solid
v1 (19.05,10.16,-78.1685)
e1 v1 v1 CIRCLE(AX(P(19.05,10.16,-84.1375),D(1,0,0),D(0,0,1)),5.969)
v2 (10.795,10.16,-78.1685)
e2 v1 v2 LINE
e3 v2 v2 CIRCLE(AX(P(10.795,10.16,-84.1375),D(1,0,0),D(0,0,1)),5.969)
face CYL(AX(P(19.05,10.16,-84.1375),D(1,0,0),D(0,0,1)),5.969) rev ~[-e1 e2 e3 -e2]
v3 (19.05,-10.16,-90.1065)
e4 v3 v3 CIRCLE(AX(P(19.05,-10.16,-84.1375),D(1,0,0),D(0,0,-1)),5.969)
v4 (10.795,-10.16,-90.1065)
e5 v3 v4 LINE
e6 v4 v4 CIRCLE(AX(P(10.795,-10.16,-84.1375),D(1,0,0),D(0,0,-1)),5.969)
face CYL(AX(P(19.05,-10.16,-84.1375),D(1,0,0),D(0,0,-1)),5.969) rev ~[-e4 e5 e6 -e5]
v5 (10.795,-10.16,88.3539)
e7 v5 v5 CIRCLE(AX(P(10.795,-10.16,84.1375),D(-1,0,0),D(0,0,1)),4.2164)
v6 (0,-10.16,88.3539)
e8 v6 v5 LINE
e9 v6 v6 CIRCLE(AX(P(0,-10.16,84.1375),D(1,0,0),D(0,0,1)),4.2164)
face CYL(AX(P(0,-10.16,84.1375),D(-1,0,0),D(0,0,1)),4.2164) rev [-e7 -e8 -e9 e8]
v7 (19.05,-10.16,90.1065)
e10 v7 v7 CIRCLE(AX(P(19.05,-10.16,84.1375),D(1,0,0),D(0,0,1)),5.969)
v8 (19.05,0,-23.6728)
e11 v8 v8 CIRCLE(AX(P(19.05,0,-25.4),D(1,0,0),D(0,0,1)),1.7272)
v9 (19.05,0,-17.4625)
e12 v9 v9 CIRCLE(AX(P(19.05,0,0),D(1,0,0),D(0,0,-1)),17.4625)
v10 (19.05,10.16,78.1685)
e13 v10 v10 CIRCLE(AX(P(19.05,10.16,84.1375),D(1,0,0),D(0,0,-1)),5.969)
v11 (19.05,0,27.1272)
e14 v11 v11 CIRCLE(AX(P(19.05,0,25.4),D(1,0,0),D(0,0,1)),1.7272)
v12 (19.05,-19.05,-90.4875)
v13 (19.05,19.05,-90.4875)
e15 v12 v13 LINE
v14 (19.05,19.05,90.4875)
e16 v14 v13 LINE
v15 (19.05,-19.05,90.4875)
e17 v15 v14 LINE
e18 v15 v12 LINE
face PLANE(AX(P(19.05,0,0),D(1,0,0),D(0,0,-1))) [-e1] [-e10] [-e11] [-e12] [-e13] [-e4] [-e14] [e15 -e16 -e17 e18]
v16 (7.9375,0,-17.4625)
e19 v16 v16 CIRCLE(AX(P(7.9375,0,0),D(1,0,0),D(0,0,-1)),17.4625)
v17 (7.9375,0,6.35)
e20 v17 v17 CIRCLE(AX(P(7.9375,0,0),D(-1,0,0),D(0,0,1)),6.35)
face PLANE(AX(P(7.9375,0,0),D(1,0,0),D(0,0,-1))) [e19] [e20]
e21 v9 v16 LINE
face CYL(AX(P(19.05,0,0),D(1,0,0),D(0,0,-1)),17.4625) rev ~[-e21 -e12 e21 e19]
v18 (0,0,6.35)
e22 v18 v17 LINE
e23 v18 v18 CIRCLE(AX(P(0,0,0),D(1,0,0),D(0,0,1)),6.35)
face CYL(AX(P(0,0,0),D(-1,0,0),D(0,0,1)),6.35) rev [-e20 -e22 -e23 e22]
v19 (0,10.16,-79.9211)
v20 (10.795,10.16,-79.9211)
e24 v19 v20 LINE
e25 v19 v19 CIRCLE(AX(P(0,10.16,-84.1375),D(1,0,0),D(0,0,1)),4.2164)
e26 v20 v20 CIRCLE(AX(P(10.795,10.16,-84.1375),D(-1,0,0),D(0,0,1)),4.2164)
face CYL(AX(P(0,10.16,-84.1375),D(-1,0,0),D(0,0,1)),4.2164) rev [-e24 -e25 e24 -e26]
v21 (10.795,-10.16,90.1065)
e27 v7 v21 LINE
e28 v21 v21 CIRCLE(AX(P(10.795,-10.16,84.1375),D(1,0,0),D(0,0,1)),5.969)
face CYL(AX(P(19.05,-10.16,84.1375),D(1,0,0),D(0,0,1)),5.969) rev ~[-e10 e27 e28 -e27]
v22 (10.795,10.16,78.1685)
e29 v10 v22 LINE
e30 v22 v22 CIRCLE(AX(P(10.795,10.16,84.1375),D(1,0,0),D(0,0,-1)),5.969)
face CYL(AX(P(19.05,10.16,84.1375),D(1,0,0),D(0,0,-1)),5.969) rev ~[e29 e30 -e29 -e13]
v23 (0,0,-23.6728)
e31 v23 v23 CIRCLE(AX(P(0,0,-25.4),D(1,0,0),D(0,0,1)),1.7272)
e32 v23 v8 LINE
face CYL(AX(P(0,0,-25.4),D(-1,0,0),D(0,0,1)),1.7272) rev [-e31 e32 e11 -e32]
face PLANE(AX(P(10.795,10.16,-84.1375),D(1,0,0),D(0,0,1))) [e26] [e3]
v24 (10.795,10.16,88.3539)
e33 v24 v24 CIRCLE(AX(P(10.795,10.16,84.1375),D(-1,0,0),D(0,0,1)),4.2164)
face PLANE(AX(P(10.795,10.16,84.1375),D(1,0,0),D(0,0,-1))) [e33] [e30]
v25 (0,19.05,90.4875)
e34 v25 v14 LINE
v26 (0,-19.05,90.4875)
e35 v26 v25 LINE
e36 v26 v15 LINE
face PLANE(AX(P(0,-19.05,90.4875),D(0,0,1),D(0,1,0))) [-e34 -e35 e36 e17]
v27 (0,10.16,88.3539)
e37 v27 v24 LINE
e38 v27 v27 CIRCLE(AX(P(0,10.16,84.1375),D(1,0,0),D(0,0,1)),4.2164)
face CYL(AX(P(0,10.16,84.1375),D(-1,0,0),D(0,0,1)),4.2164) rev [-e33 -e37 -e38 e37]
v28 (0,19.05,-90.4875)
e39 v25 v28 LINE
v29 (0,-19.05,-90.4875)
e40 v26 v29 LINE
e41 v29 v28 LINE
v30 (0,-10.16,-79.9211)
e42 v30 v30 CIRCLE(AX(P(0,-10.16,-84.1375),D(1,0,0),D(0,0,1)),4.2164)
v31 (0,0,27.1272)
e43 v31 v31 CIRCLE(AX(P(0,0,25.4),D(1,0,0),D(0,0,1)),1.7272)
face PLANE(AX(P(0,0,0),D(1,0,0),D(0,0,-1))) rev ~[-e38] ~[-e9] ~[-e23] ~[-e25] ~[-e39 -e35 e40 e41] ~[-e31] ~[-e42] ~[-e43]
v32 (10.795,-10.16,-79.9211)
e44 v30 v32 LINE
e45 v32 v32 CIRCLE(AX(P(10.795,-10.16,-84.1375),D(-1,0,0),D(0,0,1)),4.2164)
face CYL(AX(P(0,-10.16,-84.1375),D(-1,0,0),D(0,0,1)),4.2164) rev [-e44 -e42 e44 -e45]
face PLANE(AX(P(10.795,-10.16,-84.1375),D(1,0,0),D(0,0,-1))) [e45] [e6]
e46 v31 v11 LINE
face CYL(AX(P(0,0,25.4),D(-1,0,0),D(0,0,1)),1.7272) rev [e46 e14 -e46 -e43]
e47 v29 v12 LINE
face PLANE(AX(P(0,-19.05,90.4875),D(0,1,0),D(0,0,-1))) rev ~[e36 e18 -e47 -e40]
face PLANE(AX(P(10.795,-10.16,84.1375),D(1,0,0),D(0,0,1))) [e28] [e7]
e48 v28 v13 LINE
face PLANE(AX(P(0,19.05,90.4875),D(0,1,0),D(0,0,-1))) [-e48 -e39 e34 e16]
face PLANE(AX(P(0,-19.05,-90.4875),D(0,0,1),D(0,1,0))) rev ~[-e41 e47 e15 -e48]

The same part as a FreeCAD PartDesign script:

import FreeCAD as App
import Part
import Sketcher
Q = App.Units.Quantity


def add_polygon(sketch, points):
    """Adds a closed chain of lines whose ends are joined by coincident constraints."""
    first, n = sketch.GeometryCount, len(points)
    for a, b in zip(points, points[1:] + points[:1]):
        sketch.addGeometry(Part.LineSegment(App.Vector(*a, 0), App.Vector(*b, 0)), False)
    for i in range(n):
        sketch.addConstraint(Sketcher.Constraint("Coincident", first + i, 2, first + (i + 1) % n, 1))

doc = App.newDocument("Part")
body = doc.addObject("PartDesign::Body", "Body")

# Sketch on YZ plane
sketch1 = doc.addObject("Sketcher::SketchObject", "Sketch")
body.addObject(sketch1)
sketch1.AttachmentSupport = (doc.YZ_Plane, [""])
sketch1.MapMode = "FlatFace"
add_polygon(sketch1, [(19.1, 90.5), (-19.1, 90.5), (-19.1, -90.5), (19.1, -90.5)])  # lines 0-3
sketch1.addGeometry(Part.Circle(App.Vector(-10.2, 84.1, 0), App.Vector(0, 0, 1), 4.2), False)  # 4
sketch1.addGeometry(Part.Circle(App.Vector(-10.2, -84.1, 0), App.Vector(0, 0, 1), 4.2), False)  # 5
sketch1.addGeometry(Part.Circle(App.Vector(0, 25.4, 0), App.Vector(0, 0, 1), 1.7), False)  # 6
sketch1.addGeometry(Part.Circle(App.Vector(10.2, 84.1, 0), App.Vector(0, 0, 1), 4.2), False)  # 7
sketch1.addGeometry(Part.Circle(App.Vector(0, 0, 0), App.Vector(0, 0, 1), 6.3), False)  # 8
sketch1.addGeometry(Part.Circle(App.Vector(0, -25.4, 0), App.Vector(0, 0, 1), 1.7), False)  # 9
sketch1.addGeometry(Part.Circle(App.Vector(10.2, -84.1, 0), App.Vector(0, 0, 1), 4.2), False)  # 10
sketch1.addConstraint([
    Sketcher.Constraint("Horizontal", 0),
    Sketcher.Constraint("Vertical", 1),
    Sketcher.Constraint("Horizontal", 2),
    Sketcher.Constraint("Vertical", 3),
    Sketcher.Constraint("Coincident", 8, 3, -1, 1),
    Sketcher.Constraint("Equal", 4, 5),
    Sketcher.Constraint("Equal", 5, 7),
    Sketcher.Constraint("Equal", 6, 9),
    Sketcher.Constraint("Equal", 7, 10),
    Sketcher.Constraint("Symmetric", 5, 3, 7, 3, -1, 1),
    Sketcher.Constraint("Symmetric", 6, 3, 9, 3, -1, 1),
    Sketcher.Constraint("Symmetric", 4, 3, 10, 3, -1, 1),
    Sketcher.Constraint("Symmetric", 0, 2, 2, 2, -1, 1),
    Sketcher.Constraint("Symmetric", 4, 3, 7, 3, -2),
    Sketcher.Constraint("PointOnObject", 6, 3, -2),
    Sketcher.Constraint("Diameter", 8, Q("0.5 in")),
    Sketcher.Constraint("Diameter", 4, Q("0.332 in")),
    Sketcher.Constraint("Diameter", 6, Q("0.136 in")),
    Sketcher.Constraint("DistanceX", 0, 2, 0, 1, Q("1.5 in")),
    Sketcher.Constraint("DistanceY", -1, 1, 6, 3, Q("1 in")),
    Sketcher.Constraint("DistanceX", 4, 3, -1, 1, Q("0.4 in")),
    Sketcher.Constraint("DistanceY", 1, 2, 1, 1, Q("7.125 in")),
    Sketcher.Constraint("DistanceY", 4, 3, 0, 2, Q("0.25 in")),
])
pad1 = doc.addObject("PartDesign::Pad", "Pad")
body.addObject(pad1)
pad1.Profile = sketch1
pad1.Length = Q("0.75 in")

# Sketch on YZ plane
sketch2 = doc.addObject("Sketcher::SketchObject", "Sketch001")
body.addObject(sketch2)
sketch2.AttachmentSupport = (doc.YZ_Plane, [""])
sketch2.MapMode = "FlatFace"
sketch2.AttachmentOffset = App.Placement(App.Vector(0, 0, 0.75 * 25.4), App.Rotation())
sketch2.addGeometry([
    Part.Circle(App.Vector(10, 84, 0), App.Vector(0, 0, 1), 6),
    Part.Circle(App.Vector(-10, 84, 0), App.Vector(0, 0, 1), 6),
    Part.Circle(App.Vector(-10, -84, 0), App.Vector(0, 0, 1), 6),
    Part.Circle(App.Vector(10, -84, 0), App.Vector(0, 0, 1), 6),
], False)
sketch2.addConstraint([
    Sketcher.Constraint("Equal", 0, 1),
    Sketcher.Constraint("Equal", 1, 2),
    Sketcher.Constraint("Equal", 2, 3),
    Sketcher.Constraint("Symmetric", 0, 3, 2, 3, -1, 1),
    Sketcher.Constraint("Symmetric", 1, 3, 3, 3, -1, 1),
    Sketcher.Constraint("Symmetric", 0, 3, 1, 3, -2),
    Sketcher.Constraint("Diameter", 0, Q("0.47 in")),
    Sketcher.Constraint("DistanceX", -1, 1, 0, 3, Q("0.4 in")),
    Sketcher.Constraint("DistanceY", -1, 1, 0, 3, Q("3.3125 in")),
])
pocket1 = doc.addObject("PartDesign::Pocket", "Pocket")
body.addObject(pocket1)
pocket1.Profile = sketch2
pocket1.Length = Q("0.325 in")

# Sketch on YZ plane
sketch3 = doc.addObject("Sketcher::SketchObject", "Sketch002")
body.addObject(sketch3)
sketch3.AttachmentSupport = (doc.YZ_Plane, [""])
sketch3.MapMode = "FlatFace"
sketch3.AttachmentOffset = App.Placement(App.Vector(0, 0, 0.75 * 25.4), App.Rotation())
sketch3.addGeometry(Part.Circle(App.Vector(0, 0, 0), App.Vector(0, 0, 1), 17), False)
sketch3.addConstraint([
    Sketcher.Constraint("Coincident", 0, 3, -1, 1),
    Sketcher.Constraint("Diameter", 0, Q("1.375 in")),
])
pocket2 = doc.addObject("PartDesign::Pocket", "Pocket001")
body.addObject(pocket2)
pocket2.Profile = sketch3
pocket2.Length = Q("0.4375 in")

doc.recompute()
